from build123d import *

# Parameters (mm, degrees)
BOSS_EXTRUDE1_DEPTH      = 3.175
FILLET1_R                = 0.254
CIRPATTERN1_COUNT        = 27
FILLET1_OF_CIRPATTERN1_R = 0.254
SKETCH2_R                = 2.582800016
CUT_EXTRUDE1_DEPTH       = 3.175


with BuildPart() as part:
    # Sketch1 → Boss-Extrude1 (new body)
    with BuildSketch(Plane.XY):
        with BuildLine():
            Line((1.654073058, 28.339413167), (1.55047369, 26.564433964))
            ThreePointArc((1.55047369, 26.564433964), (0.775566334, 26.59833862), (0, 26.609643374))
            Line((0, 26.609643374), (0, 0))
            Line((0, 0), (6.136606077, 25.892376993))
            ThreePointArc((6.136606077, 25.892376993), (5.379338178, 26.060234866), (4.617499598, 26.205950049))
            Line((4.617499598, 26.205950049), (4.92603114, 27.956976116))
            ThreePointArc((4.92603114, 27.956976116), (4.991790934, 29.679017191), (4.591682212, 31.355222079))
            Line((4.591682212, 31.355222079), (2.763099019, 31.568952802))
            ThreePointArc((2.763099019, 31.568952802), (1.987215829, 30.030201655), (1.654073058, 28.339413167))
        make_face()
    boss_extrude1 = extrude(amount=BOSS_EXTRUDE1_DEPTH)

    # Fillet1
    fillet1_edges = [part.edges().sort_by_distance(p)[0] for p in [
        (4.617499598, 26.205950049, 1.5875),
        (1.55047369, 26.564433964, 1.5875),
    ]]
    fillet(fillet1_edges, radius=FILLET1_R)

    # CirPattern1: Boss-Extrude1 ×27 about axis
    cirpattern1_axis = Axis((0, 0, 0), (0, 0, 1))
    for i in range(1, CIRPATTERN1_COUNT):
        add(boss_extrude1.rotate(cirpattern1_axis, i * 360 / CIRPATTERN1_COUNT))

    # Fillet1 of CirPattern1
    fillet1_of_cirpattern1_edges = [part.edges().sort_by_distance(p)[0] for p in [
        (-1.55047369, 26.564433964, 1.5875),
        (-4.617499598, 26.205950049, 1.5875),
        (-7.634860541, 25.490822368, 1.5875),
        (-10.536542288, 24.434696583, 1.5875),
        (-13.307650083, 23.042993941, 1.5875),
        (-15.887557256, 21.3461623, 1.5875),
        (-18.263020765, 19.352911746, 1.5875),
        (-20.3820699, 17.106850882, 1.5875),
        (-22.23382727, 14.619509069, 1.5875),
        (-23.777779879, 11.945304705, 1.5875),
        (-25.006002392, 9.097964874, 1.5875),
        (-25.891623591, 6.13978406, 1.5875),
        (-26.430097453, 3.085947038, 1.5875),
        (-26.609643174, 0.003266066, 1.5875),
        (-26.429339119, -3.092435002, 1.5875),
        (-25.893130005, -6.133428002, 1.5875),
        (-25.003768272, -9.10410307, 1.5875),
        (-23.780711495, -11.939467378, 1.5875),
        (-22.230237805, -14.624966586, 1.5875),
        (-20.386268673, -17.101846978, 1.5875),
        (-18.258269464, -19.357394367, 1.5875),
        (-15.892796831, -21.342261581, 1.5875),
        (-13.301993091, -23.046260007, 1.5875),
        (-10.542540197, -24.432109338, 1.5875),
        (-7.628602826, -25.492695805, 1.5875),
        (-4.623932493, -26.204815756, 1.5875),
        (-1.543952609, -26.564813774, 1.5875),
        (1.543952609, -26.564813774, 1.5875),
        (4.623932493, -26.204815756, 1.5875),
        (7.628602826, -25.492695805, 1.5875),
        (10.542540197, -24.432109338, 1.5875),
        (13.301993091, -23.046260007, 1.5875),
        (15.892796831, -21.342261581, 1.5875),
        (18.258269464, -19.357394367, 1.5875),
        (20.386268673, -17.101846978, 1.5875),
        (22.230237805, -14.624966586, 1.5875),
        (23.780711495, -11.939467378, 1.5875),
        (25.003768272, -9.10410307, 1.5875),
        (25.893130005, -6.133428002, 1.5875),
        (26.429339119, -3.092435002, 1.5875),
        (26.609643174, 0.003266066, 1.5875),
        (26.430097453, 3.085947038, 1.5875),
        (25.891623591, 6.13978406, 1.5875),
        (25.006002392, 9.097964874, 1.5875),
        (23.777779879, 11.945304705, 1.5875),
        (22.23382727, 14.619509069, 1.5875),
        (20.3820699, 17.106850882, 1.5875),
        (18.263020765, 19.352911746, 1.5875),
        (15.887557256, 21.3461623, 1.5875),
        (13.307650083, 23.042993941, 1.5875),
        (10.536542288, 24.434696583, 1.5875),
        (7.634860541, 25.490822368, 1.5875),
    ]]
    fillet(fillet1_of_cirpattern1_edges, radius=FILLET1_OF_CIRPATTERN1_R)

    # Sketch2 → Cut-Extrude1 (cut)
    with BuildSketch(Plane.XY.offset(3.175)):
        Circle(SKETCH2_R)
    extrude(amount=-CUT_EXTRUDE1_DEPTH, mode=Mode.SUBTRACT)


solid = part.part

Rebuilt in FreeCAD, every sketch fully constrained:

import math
import FreeCAD as App
import Part
import Sketcher

V = App.Vector
Q = App.Units.Quantity


def edges_at(feature, points):
    """Names of the edges that pass closest to the given points."""
    edges = feature.Shape.Edges
    near = lambda p: min(range(len(edges)), key=lambda i: edges[i].distToShape(Part.Vertex(*p))[0])
    return sorted({f"Edge{near(p) + 1}" for p in points})

doc = App.newDocument("Part")
body = doc.addObject("PartDesign::Body", "Body")

# Sketch on XY plane
sketch1 = body.newObject("Sketcher::SketchObject", "Sketch")
sketch1.AttachmentSupport = (doc.getObject("XY_Plane"), [""])
sketch1.MapMode = "FlatFace"
sketch1.addGeometry([
    Part.LineSegment(V(1.7, 28.3, 0), V(1.6, 26.6, 0)),  # 0
    Part.ArcOfCircle(Part.Circle(V(0, 0, 0), V(0, 0, 1), 26.6), math.radians(86.66), math.radians(90)),  # 1
    Part.LineSegment(V(0, 26.6, 0), V(0, 0, 0)),  # 2
    Part.LineSegment(V(0, 0, 0), V(6.1, 25.9, 0)),  # 3
    Part.ArcOfCircle(Part.Circle(V(0, 0, 0), V(0, 0, 1), 26.6), math.radians(76.67), math.radians(80.01)),  # 4
    Part.LineSegment(V(4.6, 26.2, 0), V(4.9, 28, 0)),  # 5
    Part.ArcOfCircle(Part.Circle(V(-1.3, 29.1, 0), V(0, 0, 1), 6.3), math.radians(-10), math.radians(21)),  # 6
    Part.LineSegment(V(4.6, 31.4, 0), V(2.8, 31.6, 0)),  # 7
    Part.ArcOfCircle(Part.Circle(V(8, 28, 0), V(0, 0, 1), 6.3), math.radians(145), math.radians(177)),  # 8
], False)
sketch1.addConstraint([
    Sketcher.Constraint("Coincident", 0, 2, 1, 1),
    Sketcher.Constraint("Coincident", 1, 2, 2, 1),
    Sketcher.Constraint("Coincident", 2, 2, 3, 1),
    Sketcher.Constraint("Coincident", 3, 2, 4, 1),
    Sketcher.Constraint("Coincident", 4, 2, 5, 1),
    Sketcher.Constraint("Tangent", 5, 2, 6, 1),
    Sketcher.Constraint("Coincident", 6, 2, 7, 1),
    Sketcher.Constraint("Coincident", 7, 2, 8, 1),
    Sketcher.Constraint("Tangent", 8, 2, 0, 1),
    Sketcher.Constraint("Vertical", 2),
    Sketcher.Constraint("Coincident", 1, 3, -1, 1),
    Sketcher.Constraint("Coincident", 4, 3, -1, 1),
    Sketcher.Constraint("Coincident", 2, 2, -1, 1),
    Sketcher.Constraint("Equal", 1, 4),
    Sketcher.Constraint("Equal", 6, 8),
    Sketcher.Constraint("Equal", 0, 5),
    Sketcher.Constraint("Distance", 0, Q("0.07 in")),
    Sketcher.Constraint("Radius", 6, 6.34402),
    Sketcher.Constraint("Radius", 1, 26.609644),
    Sketcher.Constraint("DistanceX", -1, 1, 4, 2, 4.6175),
    Sketcher.Constraint("DistanceX", -1, 1, 7, 2, 2.763099),
    Sketcher.Constraint("DistanceY", 3, 2, 5, 2, 2.064599),
    Sketcher.Constraint("DistanceX", 0, 2, 8, 2, 0.103599),
    Sketcher.Constraint("Distance", 7, 1.841032),
    Sketcher.Constraint("DistanceX", -1, 1, 5, 2, 4.926031),
    Sketcher.Constraint("DistanceX", 6, 3, 8, 3, 9.309059),
])
pad1 = body.newObject("PartDesign::Pad", "Pad")
pad1.Profile = sketch1
pad1.Length = Q("0.125 in")
doc.recompute()

fillet = body.newObject("PartDesign::Fillet", "Fillet")
fillet.Base = (pad1, edges_at(pad1, [(4.617, 26.206, 1.587), (1.55, 26.564, 1.587)]))
fillet.Radius = Q("0.01 in")
doc.recompute()

polarpattern = body.newObject("PartDesign::PolarPattern", "PolarPattern")
polarpattern.Originals = [pad1]
polarpattern.Axis = (doc.getObject("Z_Axis"), [""])
polarpattern.Angle = 360
polarpattern.Occurrences = 27
body.Tip = polarpattern
doc.recompute()

fillet2 = body.newObject("PartDesign::Fillet", "Fillet001")
fillet2.Base = (polarpattern, edges_at(polarpattern, [
    (-1.55, 26.564, 1.587),
    (-4.617, 26.206, 1.587),
    (-7.635, 25.491, 1.587),
    (-10.537, 24.435, 1.587),
    (-13.308, 23.043, 1.587),
    (-15.888, 21.346, 1.587),
    (-18.263, 19.353, 1.587),
    (-20.382, 17.107, 1.587),
    (-22.234, 14.62, 1.587),
    (-23.778, 11.945, 1.587),
    (-25.006, 9.098, 1.587),
    (-25.892, 6.14, 1.587),
    (-26.43, 3.086, 1.587),
    (-26.61, 0.003, 1.587),
    (-26.429, -3.092, 1.587),
    (-25.893, -6.133, 1.587),
    (-25.004, -9.104, 1.587),
    (-23.781, -11.939, 1.587),
    (-22.23, -14.625, 1.587),
    (-20.386, -17.102, 1.587),
    (-18.258, -19.357, 1.587),
    (-15.893, -21.342, 1.587),
    (-13.302, -23.046, 1.587),
    (-10.543, -24.432, 1.587),
    (-7.629, -25.493, 1.587),
    (-4.624, -26.205, 1.587),
    (-1.544, -26.565, 1.587),
    (1.544, -26.565, 1.587),
    (4.624, -26.205, 1.587),
    (7.629, -25.493, 1.587),
    (10.543, -24.432, 1.587),
    (13.302, -23.046, 1.587),
    (15.893, -21.342, 1.587),
    (18.258, -19.357, 1.587),
    (20.386, -17.102, 1.587),
    (22.23, -14.625, 1.587),
    (23.781, -11.939, 1.587),
    (25.004, -9.104, 1.587),
    (25.893, -6.133, 1.587),
    (26.429, -3.092, 1.587),
    (26.61, 0.003, 1.587),
    (26.43, 3.086, 1.587),
    (25.892, 6.14, 1.587),
    (25.006, 9.098, 1.587),
    (23.778, 11.945, 1.587),
    (22.234, 14.62, 1.587),
    (20.382, 17.107, 1.587),
    (18.263, 19.353, 1.587),
    (15.888, 21.346, 1.587),
    (13.308, 23.043, 1.587),
    (10.537, 24.435, 1.587),
    (7.635, 25.491, 1.587),
]))
fillet2.Radius = Q("0.01 in")

# Sketch on XY plane
sketch2 = body.newObject("Sketcher::SketchObject", "Sketch001")
sketch2.AttachmentSupport = (doc.getObject("XY_Plane"), [""])
sketch2.MapMode = "FlatFace"
sketch2.AttachmentOffset = App.Placement(V(0, 0, 0.125 * 25.4), App.Rotation())
sketch2.addGeometry(Part.Circle(V(0, 0, 0), V(0, 0, 1), 2.6), False)
sketch2.addConstraint([
    Sketcher.Constraint("Coincident", 0, 3, -1, 1),
    Sketcher.Constraint("Diameter", 0, 5.1656),
])
pocket1 = body.newObject("PartDesign::Pocket", "Pocket")
pocket1.Profile = sketch2
pocket1.Length = Q("0.125 in")

doc.recompute()
